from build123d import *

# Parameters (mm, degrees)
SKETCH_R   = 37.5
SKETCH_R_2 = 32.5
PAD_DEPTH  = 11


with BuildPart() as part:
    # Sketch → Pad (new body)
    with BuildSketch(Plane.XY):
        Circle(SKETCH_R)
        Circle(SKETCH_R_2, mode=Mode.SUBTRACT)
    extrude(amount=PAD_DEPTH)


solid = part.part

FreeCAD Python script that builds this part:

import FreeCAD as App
import Part
import Sketcher

doc = App.newDocument("Part")
body = doc.addObject("PartDesign::Body", "Body")

# Sketch on XY plane
sketch1 = body.newObject("Sketcher::SketchObject", "Sketch")
sketch1.AttachmentSupport = (doc.getObject("XY_Plane"), [""])
sketch1.MapMode = "FlatFace"
sketch1.addGeometry([
    Part.Circle(App.Vector(0, 0, 0), App.Vector(0, 0, 1), 38),
    Part.Circle(App.Vector(0, 0, 0), App.Vector(0, 0, 1), 32),
], False)
sketch1.addConstraint([
    Sketcher.Constraint("Coincident", 0, 3, -1, 1),
    Sketcher.Constraint("Coincident", 1, 3, -1, 1),
    Sketcher.Constraint("Diameter", 0, 75.0),
    Sketcher.Constraint("Diameter", 1, 65.0),
])
pad1 = body.newObject("PartDesign::Pad", "Pad")
pad1.Profile = sketch1
pad1.Length = 11

doc.recompute()
